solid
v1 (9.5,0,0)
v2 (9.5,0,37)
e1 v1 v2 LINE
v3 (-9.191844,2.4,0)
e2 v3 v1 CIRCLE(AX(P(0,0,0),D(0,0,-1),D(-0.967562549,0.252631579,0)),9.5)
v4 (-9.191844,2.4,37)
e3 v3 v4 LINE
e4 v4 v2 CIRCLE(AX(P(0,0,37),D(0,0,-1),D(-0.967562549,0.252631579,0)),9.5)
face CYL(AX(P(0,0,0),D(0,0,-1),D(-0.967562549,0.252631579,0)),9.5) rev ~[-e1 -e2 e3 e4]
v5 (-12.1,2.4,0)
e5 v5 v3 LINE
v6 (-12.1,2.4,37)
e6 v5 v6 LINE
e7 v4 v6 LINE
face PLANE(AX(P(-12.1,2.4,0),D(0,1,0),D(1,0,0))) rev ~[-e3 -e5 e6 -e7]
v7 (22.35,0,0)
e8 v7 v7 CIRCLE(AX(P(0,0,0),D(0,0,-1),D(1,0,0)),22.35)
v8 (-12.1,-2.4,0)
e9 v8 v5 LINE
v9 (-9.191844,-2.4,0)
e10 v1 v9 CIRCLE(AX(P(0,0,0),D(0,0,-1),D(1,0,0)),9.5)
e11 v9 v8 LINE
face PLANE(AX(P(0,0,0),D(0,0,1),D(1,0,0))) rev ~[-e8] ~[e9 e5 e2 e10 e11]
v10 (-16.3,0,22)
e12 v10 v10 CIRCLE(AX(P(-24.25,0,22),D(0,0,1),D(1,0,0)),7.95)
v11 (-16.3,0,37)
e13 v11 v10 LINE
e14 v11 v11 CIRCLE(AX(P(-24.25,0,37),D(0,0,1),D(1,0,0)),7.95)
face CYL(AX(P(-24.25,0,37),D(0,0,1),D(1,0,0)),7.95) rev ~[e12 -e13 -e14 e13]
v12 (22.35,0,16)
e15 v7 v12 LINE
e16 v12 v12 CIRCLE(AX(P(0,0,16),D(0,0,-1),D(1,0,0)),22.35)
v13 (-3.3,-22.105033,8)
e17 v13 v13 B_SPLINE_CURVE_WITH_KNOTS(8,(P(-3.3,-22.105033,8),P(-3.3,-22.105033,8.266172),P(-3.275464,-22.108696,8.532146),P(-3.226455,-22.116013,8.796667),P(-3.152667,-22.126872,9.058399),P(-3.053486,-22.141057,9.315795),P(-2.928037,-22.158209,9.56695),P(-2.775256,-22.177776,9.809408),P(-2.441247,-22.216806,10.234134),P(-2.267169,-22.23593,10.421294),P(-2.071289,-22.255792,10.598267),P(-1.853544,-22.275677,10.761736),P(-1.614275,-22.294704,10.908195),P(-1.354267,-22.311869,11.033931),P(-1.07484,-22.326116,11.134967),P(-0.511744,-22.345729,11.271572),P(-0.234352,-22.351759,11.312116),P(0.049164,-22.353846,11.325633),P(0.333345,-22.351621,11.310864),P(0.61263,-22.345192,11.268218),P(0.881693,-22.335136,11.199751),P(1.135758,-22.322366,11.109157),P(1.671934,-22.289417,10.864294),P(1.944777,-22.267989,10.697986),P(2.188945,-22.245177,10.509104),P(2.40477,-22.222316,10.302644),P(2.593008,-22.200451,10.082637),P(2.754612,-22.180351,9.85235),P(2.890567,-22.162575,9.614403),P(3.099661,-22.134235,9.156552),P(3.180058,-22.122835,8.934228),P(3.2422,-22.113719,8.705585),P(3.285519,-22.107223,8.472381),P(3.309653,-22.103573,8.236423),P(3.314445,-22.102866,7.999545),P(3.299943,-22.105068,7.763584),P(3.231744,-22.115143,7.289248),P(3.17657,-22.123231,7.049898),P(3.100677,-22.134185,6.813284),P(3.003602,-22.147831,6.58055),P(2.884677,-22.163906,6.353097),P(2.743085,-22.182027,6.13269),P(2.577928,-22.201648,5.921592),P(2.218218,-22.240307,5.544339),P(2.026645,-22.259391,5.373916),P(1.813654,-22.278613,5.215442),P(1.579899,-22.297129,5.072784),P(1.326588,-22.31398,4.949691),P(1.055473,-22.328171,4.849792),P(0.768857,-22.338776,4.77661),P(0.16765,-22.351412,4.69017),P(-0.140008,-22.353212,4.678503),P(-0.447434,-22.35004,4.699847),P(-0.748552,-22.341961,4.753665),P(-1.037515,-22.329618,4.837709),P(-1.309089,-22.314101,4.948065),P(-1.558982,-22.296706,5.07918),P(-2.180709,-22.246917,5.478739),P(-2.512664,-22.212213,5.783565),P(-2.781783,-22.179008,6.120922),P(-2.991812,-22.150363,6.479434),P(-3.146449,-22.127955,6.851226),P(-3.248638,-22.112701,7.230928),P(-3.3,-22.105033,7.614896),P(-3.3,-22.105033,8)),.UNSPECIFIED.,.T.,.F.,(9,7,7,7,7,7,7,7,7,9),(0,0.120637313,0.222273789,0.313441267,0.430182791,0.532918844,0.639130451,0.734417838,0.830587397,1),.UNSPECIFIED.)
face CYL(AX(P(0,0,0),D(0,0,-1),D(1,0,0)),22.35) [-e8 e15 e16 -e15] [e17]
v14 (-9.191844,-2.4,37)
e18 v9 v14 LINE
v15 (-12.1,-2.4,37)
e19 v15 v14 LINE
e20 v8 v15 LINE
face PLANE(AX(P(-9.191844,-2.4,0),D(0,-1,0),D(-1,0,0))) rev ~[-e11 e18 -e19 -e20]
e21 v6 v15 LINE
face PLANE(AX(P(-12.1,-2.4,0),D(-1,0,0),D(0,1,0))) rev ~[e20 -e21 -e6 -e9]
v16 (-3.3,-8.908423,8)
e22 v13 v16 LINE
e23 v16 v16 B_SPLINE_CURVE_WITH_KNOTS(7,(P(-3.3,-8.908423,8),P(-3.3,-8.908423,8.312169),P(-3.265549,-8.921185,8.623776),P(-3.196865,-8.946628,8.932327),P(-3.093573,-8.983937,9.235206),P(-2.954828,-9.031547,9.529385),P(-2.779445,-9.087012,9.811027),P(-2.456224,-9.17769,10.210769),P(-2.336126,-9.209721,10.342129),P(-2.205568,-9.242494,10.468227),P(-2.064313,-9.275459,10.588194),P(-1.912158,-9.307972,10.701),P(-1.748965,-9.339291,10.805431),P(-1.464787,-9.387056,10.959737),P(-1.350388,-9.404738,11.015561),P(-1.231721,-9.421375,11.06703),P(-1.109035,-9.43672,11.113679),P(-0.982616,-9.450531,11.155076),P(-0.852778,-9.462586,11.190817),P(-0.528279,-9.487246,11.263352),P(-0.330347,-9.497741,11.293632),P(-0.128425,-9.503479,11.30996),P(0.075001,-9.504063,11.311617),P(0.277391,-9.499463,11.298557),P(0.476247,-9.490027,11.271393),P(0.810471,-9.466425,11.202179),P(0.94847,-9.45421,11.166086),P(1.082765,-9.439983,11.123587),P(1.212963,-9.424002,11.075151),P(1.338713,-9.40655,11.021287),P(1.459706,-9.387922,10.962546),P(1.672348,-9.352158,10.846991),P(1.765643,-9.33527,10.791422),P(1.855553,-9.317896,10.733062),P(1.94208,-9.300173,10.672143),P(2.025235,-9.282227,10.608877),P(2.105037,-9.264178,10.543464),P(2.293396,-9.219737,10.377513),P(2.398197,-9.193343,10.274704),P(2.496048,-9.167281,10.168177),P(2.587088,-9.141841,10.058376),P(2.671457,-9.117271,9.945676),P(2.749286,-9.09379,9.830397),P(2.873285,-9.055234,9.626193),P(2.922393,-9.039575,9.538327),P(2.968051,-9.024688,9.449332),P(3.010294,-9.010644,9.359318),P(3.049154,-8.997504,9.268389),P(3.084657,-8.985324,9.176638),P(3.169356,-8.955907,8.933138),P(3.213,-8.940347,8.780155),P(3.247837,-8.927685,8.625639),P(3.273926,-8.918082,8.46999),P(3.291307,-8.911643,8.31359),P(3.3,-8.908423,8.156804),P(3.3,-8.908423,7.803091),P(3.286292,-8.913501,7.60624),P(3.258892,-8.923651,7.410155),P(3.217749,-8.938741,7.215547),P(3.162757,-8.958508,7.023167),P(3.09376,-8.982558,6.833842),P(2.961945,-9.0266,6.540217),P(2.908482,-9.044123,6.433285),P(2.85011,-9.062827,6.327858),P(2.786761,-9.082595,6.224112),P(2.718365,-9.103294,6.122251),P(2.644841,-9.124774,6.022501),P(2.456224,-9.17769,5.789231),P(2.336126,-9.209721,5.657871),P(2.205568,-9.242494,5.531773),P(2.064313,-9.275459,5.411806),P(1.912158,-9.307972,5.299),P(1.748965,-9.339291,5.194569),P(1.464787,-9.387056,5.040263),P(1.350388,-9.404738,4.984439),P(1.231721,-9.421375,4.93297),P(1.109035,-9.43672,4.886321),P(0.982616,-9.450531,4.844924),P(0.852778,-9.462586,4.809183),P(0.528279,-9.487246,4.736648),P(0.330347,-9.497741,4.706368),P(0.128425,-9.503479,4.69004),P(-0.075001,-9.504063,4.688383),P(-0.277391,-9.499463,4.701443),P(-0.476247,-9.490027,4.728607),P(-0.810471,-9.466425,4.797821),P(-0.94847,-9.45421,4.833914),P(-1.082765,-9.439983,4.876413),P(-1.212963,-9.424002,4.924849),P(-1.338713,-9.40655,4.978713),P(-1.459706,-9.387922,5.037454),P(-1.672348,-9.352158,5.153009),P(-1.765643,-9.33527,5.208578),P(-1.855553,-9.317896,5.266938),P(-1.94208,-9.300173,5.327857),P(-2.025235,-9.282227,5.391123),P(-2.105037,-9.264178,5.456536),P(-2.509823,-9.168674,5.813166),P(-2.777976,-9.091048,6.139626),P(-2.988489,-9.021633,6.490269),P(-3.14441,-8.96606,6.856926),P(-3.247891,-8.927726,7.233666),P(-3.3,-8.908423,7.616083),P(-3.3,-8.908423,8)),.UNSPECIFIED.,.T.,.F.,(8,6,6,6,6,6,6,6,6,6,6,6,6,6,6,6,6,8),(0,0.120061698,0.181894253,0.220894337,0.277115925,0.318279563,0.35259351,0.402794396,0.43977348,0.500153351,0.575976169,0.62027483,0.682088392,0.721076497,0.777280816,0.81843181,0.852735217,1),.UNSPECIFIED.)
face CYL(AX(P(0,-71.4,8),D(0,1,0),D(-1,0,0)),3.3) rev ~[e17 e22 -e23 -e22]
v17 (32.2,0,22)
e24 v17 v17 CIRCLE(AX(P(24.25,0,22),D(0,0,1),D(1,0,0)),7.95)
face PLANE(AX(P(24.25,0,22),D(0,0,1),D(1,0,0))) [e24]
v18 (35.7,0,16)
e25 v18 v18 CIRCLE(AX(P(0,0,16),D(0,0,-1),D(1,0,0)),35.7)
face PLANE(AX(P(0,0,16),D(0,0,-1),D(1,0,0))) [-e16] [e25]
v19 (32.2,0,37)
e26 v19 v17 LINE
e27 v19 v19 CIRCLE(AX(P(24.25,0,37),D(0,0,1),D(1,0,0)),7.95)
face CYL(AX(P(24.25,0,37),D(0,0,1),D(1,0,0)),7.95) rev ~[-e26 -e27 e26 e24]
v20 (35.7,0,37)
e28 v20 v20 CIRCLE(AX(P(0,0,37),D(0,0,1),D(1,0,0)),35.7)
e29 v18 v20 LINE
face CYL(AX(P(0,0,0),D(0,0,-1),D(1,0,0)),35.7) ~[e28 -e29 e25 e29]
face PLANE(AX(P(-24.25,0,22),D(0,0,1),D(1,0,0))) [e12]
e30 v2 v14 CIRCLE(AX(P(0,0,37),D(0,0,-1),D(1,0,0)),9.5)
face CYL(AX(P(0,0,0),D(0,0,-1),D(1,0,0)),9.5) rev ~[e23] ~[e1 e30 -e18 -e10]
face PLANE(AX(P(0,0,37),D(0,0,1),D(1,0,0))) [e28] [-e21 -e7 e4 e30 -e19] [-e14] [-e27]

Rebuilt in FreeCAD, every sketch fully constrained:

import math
import FreeCAD as App
import Part
import Sketcher

V = App.Vector
Q = App.Units.Quantity

doc = App.newDocument("Part")
params = doc.addObject("Spreadsheet::Sheet", "Params")
for row, (alias, value) in enumerate([
    ("sketch1_diameter", "71.4 mm"),
    ("pad1_length", "37 mm"),
    ("sketch2_diameter", "71.4 mm"),
    ("sketch2_diameter2", "44.7 mm"),
    ("pocket1_length", "16 mm"),
    ("sketch3_radius", "9.5 mm"),
    ("sketch3_height", "4.8 mm"),
    ("sketch4_diameter", "15.9 mm"),
    ("pocket3_length", "15 mm"),
    ("sketch5_diameter", "6.6 mm"),
    ("hole_diameter", "6.6 mm"),
    ("hole_depth", "35.7 mm"),
], start=1):
    params.set(f"A{row}", alias)
    params.set(f"B{row}", "=" + value)
    params.setAlias(f"B{row}", alias)

body = doc.addObject("PartDesign::Body", "Body")

# Sketch on XY plane
sketch1 = body.newObject("Sketcher::SketchObject", "Sketch")
sketch1.AttachmentSupport = (doc.getObject("XY_Plane"), [""])
sketch1.MapMode = "FlatFace"
sketch1.addGeometry(Part.Circle(V(0, 0, 0), V(0, 0, 1), 36), False)
sketch1.addConstraint([
    Sketcher.Constraint("Coincident", 0, 3, -1, 1),
    Sketcher.Constraint("Diameter", 0, Q("71.4 mm")),
])
sketch1.setExpression("Constraints[1]", "Params.sketch1_diameter")
pad1 = body.newObject("PartDesign::Pad", "Pad")
pad1.Profile = sketch1
pad1.setExpression("Length", "Params.pad1_length")

# Sketch on XY plane
sketch2 = body.newObject("Sketcher::SketchObject", "Sketch001")
sketch2.AttachmentSupport = (doc.getObject("XY_Plane"), [""])
sketch2.MapMode = "FlatFace"
sketch2.addGeometry([
    Part.Circle(V(0, 0, 0), V(0, 0, 1), 36),
    Part.Circle(V(0, 0, 0), V(0, 0, 1), 22),
], False)
sketch2.addConstraint([
    Sketcher.Constraint("Coincident", 0, 3, -1, 1),
    Sketcher.Constraint("Coincident", 1, 3, -1, 1),
    Sketcher.Constraint("Diameter", 0, Q("71.4 mm")),
    Sketcher.Constraint("Diameter", 1, Q("44.7 mm")),
])
sketch2.setExpression("Constraints[2]", "Params.sketch2_diameter")
sketch2.setExpression("Constraints[3]", "Params.sketch2_diameter2")
pocket1 = body.newObject("PartDesign::Pocket", "Pocket")
pocket1.Profile = sketch2
pocket1.setExpression("Length", "Params.pocket1_length")
pocket1.Reversed = True

# Sketch on XY plane
sketch3 = body.newObject("Sketcher::SketchObject", "Sketch002")
sketch3.AttachmentSupport = (doc.getObject("XY_Plane"), [""])
sketch3.MapMode = "FlatFace"
sketch3.addGeometry([
    Part.LineSegment(V(-12.1, -2.4, 0), V(-12.1, 2.4, 0)),  # 0
    Part.LineSegment(V(-12.1, 2.4, 0), V(-9.2, 2.4, 0)),  # 1
    Part.ArcOfCircle(Part.Circle(V(0, 0, 0), V(0, 0, 1), 9.5), math.radians(0), math.radians(165)),  # 2
    Part.ArcOfCircle(Part.Circle(V(0, 0, 0), V(0, 0, 1), 9.5), math.radians(-165), math.radians(0)),  # 3
    Part.LineSegment(V(-9.2, -2.4, 0), V(-12.1, -2.4, 0)),  # 4
], False)
sketch3.addConstraint([
    Sketcher.Constraint("Coincident", 0, 2, 1, 1),
    Sketcher.Constraint("Coincident", 1, 2, 2, 2),
    Sketcher.Constraint("Tangent", 2, 1, 3, 2),
    Sketcher.Constraint("Coincident", 3, 1, 4, 1),
    Sketcher.Constraint("Coincident", 4, 2, 0, 1),
    Sketcher.Constraint("Vertical", 0),
    Sketcher.Constraint("Horizontal", 1),
    Sketcher.Constraint("Horizontal", 4),
    Sketcher.Constraint("Coincident", 2, 3, -1, 1),
    Sketcher.Constraint("Equal", 2, 3),
    Sketcher.Constraint("PointOnObject", 2, 1, -1),
    Sketcher.Constraint("Vertical", 1, 2, 3, 1),
    Sketcher.Constraint("Radius", 2, Q("9.5 mm")),
    Sketcher.Constraint("DistanceY", 0, 1, 0, 2, Q("4.8 mm")),
    Sketcher.Constraint("DistanceX", 0, 2, -1, 1, Q("12.1 mm")),
])
sketch3.setExpression("Constraints[12]", "Params.sketch3_radius")
sketch3.setExpression("Constraints[13]", "Params.sketch3_height")
pocket2 = body.newObject("PartDesign::Pocket", "Pocket001")
pocket2.Profile = sketch3
pocket2.Type = "ThroughAll"
pocket2.Reversed = True

# Sketch on XY plane
sketch4 = body.newObject("Sketcher::SketchObject", "Sketch003")
sketch4.AttachmentSupport = (doc.getObject("XY_Plane"), [""])
sketch4.MapMode = "FlatFace"
sketch4.AttachmentOffset = App.Placement(V(0, 0, 37), App.Rotation())
sketch4.addGeometry([
    Part.Circle(V(-24, 0, 0), V(0, 0, 1), 8),
    Part.Circle(V(24, 0, 0), V(0, 0, 1), 8),
], False)
sketch4.addConstraint([
    Sketcher.Constraint("Equal", 0, 1),
    Sketcher.Constraint("Symmetric", 0, 3, 1, 3, -1, 1),
    Sketcher.Constraint("PointOnObject", 0, 3, -1),
    Sketcher.Constraint("Diameter", 0, Q("15.9 mm")),
    Sketcher.Constraint("DistanceX", 0, 3, 1, 3, Q("48.5 mm")),
])
sketch4.setExpression("Constraints[3]", "Params.sketch4_diameter")
pocket3 = body.newObject("PartDesign::Pocket", "Pocket002")
pocket3.Profile = sketch4
pocket3.setExpression("Length", "Params.pocket3_length")

# Sketch on XZ plane
sketch5 = body.newObject("Sketcher::SketchObject", "Sketch004")
sketch5.AttachmentSupport = (doc.getObject("XZ_Plane"), [""])
sketch5.MapMode = "FlatFace"
sketch5.AttachmentOffset = App.Placement(V(0, 0, 35.7), App.Rotation())
sketch5.addGeometry(Part.Circle(V(0, 8, 0), V(0, 0, 1), 3.3), False)
sketch5.addConstraint([
    Sketcher.Constraint("PointOnObject", 0, 3, -2),
    Sketcher.Constraint("Diameter", 0, Q("6.6 mm")),
    Sketcher.Constraint("DistanceY", -1, 1, 0, 3, Q("8 mm")),
])
sketch5.setExpression("Constraints[1]", "Params.sketch5_diameter")
doc.recompute()
hole = body.newObject("PartDesign::Hole", "Hole")
hole.Profile = sketch5
hole.ThreadType = "None"
hole.setExpression("Diameter", "Params.hole_diameter")
hole.DepthType = "Dimension"
hole.setExpression("Depth", "Params.hole_depth")
hole.DrillPoint = "Angled"
hole.DrillPointAngle = 118

doc.recompute()
